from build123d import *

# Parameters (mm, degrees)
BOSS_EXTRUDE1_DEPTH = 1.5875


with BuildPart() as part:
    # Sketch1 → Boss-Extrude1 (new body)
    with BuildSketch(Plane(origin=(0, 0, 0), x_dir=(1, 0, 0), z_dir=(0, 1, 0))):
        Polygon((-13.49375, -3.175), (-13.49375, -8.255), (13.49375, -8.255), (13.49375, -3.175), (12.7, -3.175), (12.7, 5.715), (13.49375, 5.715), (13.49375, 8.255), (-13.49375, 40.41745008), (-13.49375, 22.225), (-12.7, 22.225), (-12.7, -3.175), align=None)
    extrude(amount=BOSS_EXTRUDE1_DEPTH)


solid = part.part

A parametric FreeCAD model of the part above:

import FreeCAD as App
import Part
import Sketcher

V = App.Vector
Q = App.Units.Quantity


def add_polygon(sketch, points):
    """Adds a closed chain of lines whose ends are joined by coincident constraints."""
    first, n = sketch.GeometryCount, len(points)
    for a, b in zip(points, points[1:] + points[:1]):
        sketch.addGeometry(Part.LineSegment(App.Vector(*a, 0), App.Vector(*b, 0)), False)
    for i in range(n):
        sketch.addConstraint(Sketcher.Constraint("Coincident", first + i, 2, first + (i + 1) % n, 1))

doc = App.newDocument("Part")
body = doc.addObject("PartDesign::Body", "Body")

# Sketch on XZ plane
sketch1 = body.newObject("Sketcher::SketchObject", "Sketch")
sketch1.AttachmentSupport = (doc.getObject("XZ_Plane"), [""])
sketch1.MapMode = "FlatFace"
add_polygon(sketch1, [(-13.49375, 3.175), (-13.49375, 8.255), (13.49375, 8.255), (13.49375, 3.175), (12.7, 3.175), (12.7, -5.715), (13.49375, -5.715), (13.49375, -8.255), (-13.49375, -40.41745), (-13.49375, -22.225), (-12.7, -22.225), (-12.7, 3.175)])  # lines 0-11
sketch1.addConstraint([
    Sketcher.Constraint("Vertical", 0),
    Sketcher.Constraint("Horizontal", 1),
    Sketcher.Constraint("Vertical", 2),
    Sketcher.Constraint("Horizontal", 3),
    Sketcher.Constraint("Vertical", 4),
    Sketcher.Constraint("Horizontal", 5),
    Sketcher.Constraint("Vertical", 6),
    Sketcher.Constraint("Vertical", 8),
    Sketcher.Constraint("Horizontal", 9),
    Sketcher.Constraint("Vertical", 10),
    Sketcher.Constraint("Horizontal", 11),
    Sketcher.Constraint("Symmetric", 0, 2, 6, 2, -1, 1),
    Sketcher.Constraint("Symmetric", 3, 2, 10, 2, -2),
    Sketcher.Constraint("Vertical", 2, 2, 5, 2),
    Sketcher.Constraint("Vertical", 0, 2, 7, 2),
    Sketcher.Constraint("DistanceY", 10, 1, 10, 2, Q("1 in")),
    Sketcher.Constraint("DistanceY", 0, 1, 0, 2, Q("0.2 in")),
    Sketcher.Constraint("DistanceY", 6, 2, 6, 1, Q("0.1 in")),
    Sketcher.Constraint("Angle", 7, Q("-130 deg")),
    Sketcher.Constraint("DistanceX", 9, 2, 4, 2, Q("1 in")),
    Sketcher.Constraint("DistanceY", 4, 2, 4, 1, Q("0.35 in")),
    Sketcher.Constraint("DistanceX", 1, 1, 1, 2, Q("1.0625 in")),
])
pad1 = body.newObject("PartDesign::Pad", "Pad")
pad1.Profile = sketch1
pad1.Length = Q("0.0625 in")
pad1.Reversed = True

doc.recompute()
